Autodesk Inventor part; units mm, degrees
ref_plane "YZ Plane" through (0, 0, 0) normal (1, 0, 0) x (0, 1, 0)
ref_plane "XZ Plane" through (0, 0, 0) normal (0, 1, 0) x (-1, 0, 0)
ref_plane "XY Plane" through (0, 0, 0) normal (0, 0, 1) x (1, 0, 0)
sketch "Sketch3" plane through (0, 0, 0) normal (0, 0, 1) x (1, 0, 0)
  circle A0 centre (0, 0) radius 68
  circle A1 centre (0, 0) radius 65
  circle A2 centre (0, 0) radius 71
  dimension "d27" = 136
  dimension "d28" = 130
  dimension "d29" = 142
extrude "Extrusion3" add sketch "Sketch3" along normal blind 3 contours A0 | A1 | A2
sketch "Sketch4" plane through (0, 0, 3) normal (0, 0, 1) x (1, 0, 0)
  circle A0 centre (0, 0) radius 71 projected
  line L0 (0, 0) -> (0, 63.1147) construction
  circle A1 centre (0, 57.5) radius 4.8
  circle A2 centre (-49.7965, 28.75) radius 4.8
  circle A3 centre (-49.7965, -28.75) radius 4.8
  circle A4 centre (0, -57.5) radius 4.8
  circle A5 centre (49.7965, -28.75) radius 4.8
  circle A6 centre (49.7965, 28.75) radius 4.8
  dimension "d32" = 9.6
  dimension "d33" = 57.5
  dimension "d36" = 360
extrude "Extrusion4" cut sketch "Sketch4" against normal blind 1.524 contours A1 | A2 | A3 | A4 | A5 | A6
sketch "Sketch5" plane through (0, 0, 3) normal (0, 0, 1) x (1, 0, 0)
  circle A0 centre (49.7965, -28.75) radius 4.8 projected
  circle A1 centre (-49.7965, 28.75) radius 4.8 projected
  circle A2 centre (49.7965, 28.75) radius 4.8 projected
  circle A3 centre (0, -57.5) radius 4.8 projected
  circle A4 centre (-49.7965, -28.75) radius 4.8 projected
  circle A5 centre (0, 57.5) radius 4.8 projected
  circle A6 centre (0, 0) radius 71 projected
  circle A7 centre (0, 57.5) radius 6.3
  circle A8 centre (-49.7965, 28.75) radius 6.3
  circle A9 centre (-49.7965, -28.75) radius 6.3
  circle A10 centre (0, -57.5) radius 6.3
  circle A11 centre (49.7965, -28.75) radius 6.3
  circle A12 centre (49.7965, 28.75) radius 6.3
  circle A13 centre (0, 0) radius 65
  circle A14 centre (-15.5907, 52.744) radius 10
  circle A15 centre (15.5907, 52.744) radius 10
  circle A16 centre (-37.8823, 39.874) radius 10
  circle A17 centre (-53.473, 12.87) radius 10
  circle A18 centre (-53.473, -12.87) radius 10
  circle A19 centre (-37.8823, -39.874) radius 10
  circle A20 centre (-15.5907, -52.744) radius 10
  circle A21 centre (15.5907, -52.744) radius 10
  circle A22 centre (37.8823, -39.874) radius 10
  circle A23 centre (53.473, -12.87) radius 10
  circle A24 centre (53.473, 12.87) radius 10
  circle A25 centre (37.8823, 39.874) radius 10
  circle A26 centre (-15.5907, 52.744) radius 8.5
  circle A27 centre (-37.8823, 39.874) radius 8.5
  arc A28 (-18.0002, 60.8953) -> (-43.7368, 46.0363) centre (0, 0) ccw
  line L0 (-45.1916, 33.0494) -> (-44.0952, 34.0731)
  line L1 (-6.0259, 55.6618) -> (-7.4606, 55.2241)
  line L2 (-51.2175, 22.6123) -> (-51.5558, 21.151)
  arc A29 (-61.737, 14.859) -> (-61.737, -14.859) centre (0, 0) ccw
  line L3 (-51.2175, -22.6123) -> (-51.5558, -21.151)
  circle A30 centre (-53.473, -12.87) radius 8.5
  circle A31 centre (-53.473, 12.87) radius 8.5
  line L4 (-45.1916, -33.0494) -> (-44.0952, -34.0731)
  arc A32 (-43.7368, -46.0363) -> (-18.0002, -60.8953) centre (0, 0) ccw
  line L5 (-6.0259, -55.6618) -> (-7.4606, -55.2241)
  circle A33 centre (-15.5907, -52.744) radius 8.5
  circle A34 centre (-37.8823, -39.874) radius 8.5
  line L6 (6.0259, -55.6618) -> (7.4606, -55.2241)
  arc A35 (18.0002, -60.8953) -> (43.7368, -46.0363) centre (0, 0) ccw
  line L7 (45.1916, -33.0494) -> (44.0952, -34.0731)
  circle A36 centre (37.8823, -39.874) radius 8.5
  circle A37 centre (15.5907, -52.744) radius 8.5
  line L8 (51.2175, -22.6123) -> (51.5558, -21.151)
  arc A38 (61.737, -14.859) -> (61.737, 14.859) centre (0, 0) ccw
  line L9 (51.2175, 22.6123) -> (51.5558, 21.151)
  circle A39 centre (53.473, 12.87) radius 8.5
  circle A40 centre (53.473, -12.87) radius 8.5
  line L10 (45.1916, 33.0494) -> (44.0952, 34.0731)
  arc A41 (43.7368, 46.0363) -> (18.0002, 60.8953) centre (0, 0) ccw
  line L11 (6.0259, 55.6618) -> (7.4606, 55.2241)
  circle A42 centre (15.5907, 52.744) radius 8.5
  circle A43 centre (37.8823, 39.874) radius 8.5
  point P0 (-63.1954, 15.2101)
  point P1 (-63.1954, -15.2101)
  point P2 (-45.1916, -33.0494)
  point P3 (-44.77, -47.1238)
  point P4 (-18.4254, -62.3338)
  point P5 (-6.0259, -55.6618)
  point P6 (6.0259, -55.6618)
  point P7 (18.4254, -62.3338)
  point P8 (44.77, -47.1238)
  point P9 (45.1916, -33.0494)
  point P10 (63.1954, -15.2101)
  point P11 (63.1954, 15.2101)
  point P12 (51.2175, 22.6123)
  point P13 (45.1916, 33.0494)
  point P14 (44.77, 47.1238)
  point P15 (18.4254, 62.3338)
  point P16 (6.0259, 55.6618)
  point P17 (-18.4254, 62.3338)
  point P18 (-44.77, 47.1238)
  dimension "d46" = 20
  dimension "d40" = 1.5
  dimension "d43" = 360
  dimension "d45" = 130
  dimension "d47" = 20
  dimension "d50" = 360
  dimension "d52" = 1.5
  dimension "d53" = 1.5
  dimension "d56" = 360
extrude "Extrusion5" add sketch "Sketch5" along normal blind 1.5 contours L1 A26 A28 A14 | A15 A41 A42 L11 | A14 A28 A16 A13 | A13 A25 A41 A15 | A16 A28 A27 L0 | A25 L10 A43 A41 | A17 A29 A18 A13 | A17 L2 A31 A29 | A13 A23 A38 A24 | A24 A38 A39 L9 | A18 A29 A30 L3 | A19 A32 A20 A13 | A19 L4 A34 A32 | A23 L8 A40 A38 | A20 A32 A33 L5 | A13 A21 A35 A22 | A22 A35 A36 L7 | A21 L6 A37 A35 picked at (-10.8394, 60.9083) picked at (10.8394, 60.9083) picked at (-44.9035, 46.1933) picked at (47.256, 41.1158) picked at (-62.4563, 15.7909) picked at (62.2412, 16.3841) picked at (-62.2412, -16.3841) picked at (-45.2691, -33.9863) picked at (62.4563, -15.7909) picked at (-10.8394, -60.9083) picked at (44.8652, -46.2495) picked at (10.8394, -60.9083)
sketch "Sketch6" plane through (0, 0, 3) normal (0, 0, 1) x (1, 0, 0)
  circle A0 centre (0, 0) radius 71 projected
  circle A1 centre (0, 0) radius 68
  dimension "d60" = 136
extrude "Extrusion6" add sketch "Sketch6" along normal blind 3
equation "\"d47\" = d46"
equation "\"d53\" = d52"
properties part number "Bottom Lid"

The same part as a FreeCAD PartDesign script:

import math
import FreeCAD as App
import Part
import Sketcher
from FreeCAD import Vector
Q = App.Units.Quantity

doc = App.newDocument("Part")
body = doc.addObject("PartDesign::Body", "Body")

# Sketch on XY plane
sketch1 = doc.addObject("Sketcher::SketchObject", "Sketch")
body.addObject(sketch1)
sketch1.AttachmentSupport = (doc.XY_Plane, [""])
sketch1.MapMode = "FlatFace"
sketch1.addGeometry(Part.Circle(Vector(0, 0, 0), Vector(0, 0, 1), 71), False)
sketch1.addConstraint(Sketcher.Constraint("Coincident", 0, 3, -1, 1))
sketch1.addConstraint(Sketcher.Constraint("Diameter", 0, Q("142 mm")))
pad1 = doc.addObject("PartDesign::Pad", "Pad")
body.addObject(pad1)
pad1.Profile = sketch1
pad1.Length = 3

# Sketch on XY plane
sketch2 = doc.addObject("Sketcher::SketchObject", "Sketch001")
body.addObject(sketch2)
sketch2.AttachmentSupport = (doc.XY_Plane, [""])
sketch2.MapMode = "FlatFace"
sketch2.AttachmentOffset = App.Placement(Vector(0, 0, 3), App.Rotation())
sketch2.addGeometry(Part.Circle(Vector(0, 57.5, 0), Vector(0, 0, 1), 4.8), False)
sketch2.addGeometry(Part.Circle(Vector(-49.8, 28.8, 0), Vector(0, 0, 1), 4.8), False)
sketch2.addGeometry(Part.Circle(Vector(-49.8, -28.8, 0), Vector(0, 0, 1), 4.8), False)
sketch2.addGeometry(Part.Circle(Vector(0, -57.5, 0), Vector(0, 0, 1), 4.8), False)
sketch2.addGeometry(Part.Circle(Vector(49.8, -28.8, 0), Vector(0, 0, 1), 4.8), False)
sketch2.addGeometry(Part.Circle(Vector(49.8, 28.8, 0), Vector(0, 0, 1), 4.8), False)
sketch2.addConstraint(Sketcher.Constraint("Equal", 0, 1))
sketch2.addConstraint(Sketcher.Constraint("Equal", 1, 2))
sketch2.addConstraint(Sketcher.Constraint("Equal", 2, 3))
sketch2.addConstraint(Sketcher.Constraint("Equal", 3, 4))
sketch2.addConstraint(Sketcher.Constraint("Equal", 4, 5))
sketch2.addConstraint(Sketcher.Constraint("Symmetric", 0, 3, 3, 3, -1, 1))
sketch2.addConstraint(Sketcher.Constraint("Symmetric", 1, 3, 4, 3, -1, 1))
sketch2.addConstraint(Sketcher.Constraint("Symmetric", 2, 3, 5, 3, -1, 1))
sketch2.addConstraint(Sketcher.Constraint("Symmetric", 2, 3, 4, 3, -2))
sketch2.addConstraint(Sketcher.Constraint("PointOnObject", 0, 3, -2))
sketch2.addConstraint(Sketcher.Constraint("Diameter", 0, Q("9.6 mm")))
sketch2.addConstraint(Sketcher.Constraint("DistanceY", -1, 1, 0, 3, Q("57.5 mm")))
sketch2.addConstraint(Sketcher.Constraint("DistanceY", 2, 3, 1, 3, Q("57.5 mm")))
sketch2.addConstraint(Sketcher.Constraint("DistanceX", 2, 3, 4, 3, Q("99.593 mm")))
pocket1 = doc.addObject("PartDesign::Pocket", "Pocket")
body.addObject(pocket1)
pocket1.Profile = sketch2
pocket1.Length = 1.524

# Sketch on XY plane
sketch3 = doc.addObject("Sketcher::SketchObject", "Sketch002")
body.addObject(sketch3)
sketch3.AttachmentSupport = (doc.XY_Plane, [""])
sketch3.MapMode = "FlatFace"
sketch3.AttachmentOffset = App.Placement(Vector(0, 0, 3), App.Rotation())
sketch3.addGeometry(Part.LineSegment(Vector(-7.5, 55.2, 0), Vector(-6, 55.7, 0)), False)
sketch3.addGeometry(Part.ArcOfCircle(Part.Circle(Vector(-15.6, 52.7, 0), Vector(0, 0, 1), 10), math.radians(17), math.radians(106)), False)
sketch3.addGeometry(Part.ArcOfCircle(Part.Circle(Vector(0, 0, 0), Vector(0, 0, 1), 65), math.radians(106), math.radians(134)), False)
sketch3.addGeometry(Part.ArcOfCircle(Part.Circle(Vector(-37.9, 39.9, 0), Vector(0, 0, 1), 10), math.radians(134), math.radians(223)), False)
sketch3.addGeometry(Part.LineSegment(Vector(-45.2, 33, 0), Vector(-44.1, 34.1, 0)), False)
sketch3.addGeometry(Part.ArcOfCircle(Part.Circle(Vector(-37.9, 39.9, 0), Vector(0, 0, 1), 8.5), math.radians(134), math.radians(223)), False)
sketch3.addGeometry(Part.ArcOfCircle(Part.Circle(Vector(0, 0, 0), Vector(0, 0, 1), 63.5), math.radians(106), math.radians(134)), False)
sketch3.addGeometry(Part.ArcOfCircle(Part.Circle(Vector(-15.6, 52.7, 0), Vector(0, 0, 1), 8.5), math.radians(17), math.radians(106)), False)
sketch3.addGeometry(Part.ArcOfCircle(Part.Circle(Vector(15.6, 52.7, 0), Vector(0, 0, 1), 10), math.radians(74), math.radians(163)), False)
sketch3.addGeometry(Part.LineSegment(Vector(6, 55.7, 0), Vector(7.5, 55.2, 0)), False)
sketch3.addGeometry(Part.ArcOfCircle(Part.Circle(Vector(15.6, 52.7, 0), Vector(0, 0, 1), 8.5), math.radians(74), math.radians(163)), False)
sketch3.addGeometry(Part.ArcOfCircle(Part.Circle(Vector(0, 0, 0), Vector(0, 0, 1), 63.5), math.radians(46), math.radians(74)), False)
sketch3.addGeometry(Part.ArcOfCircle(Part.Circle(Vector(37.9, 39.9, 0), Vector(0, 0, 1), 8.5), math.radians(-43), math.radians(46)), False)
sketch3.addGeometry(Part.LineSegment(Vector(44.1, 34.1, 0), Vector(45.2, 33, 0)), False)
sketch3.addGeometry(Part.ArcOfCircle(Part.Circle(Vector(37.9, 39.9, 0), Vector(0, 0, 1), 10), math.radians(-43), math.radians(46)), False)
sketch3.addGeometry(Part.ArcOfCircle(Part.Circle(Vector(0, 0, 0), Vector(0, 0, 1), 65), math.radians(46), math.radians(74)), False)
sketch3.addGeometry(Part.ArcOfCircle(Part.Circle(Vector(-53.5, 12.9, 0), Vector(0, 0, 1), 8.5), math.radians(77), math.radians(166)), False)
sketch3.addGeometry(Part.LineSegment(Vector(-51.6, 21.2, 0), Vector(-51.2, 22.6, 0)), False)
sketch3.addGeometry(Part.ArcOfCircle(Part.Circle(Vector(-53.5, 12.9, 0), Vector(0, 0, 1), 10), math.radians(77), math.radians(166)), False)
sketch3.addGeometry(Part.ArcOfCircle(Part.Circle(Vector(0, 0, 0), Vector(0, 0, 1), 65), math.radians(166), math.radians(194)), False)
sketch3.addGeometry(Part.ArcOfCircle(Part.Circle(Vector(-53.5, -12.9, 0), Vector(0, 0, 1), 10), math.radians(-166), math.radians(-77)), False)
sketch3.addGeometry(Part.LineSegment(Vector(-51.2, -22.6, 0), Vector(-51.6, -21.2, 0)), False)
sketch3.addGeometry(Part.ArcOfCircle(Part.Circle(Vector(-53.5, -12.9, 0), Vector(0, 0, 1), 8.5), math.radians(-166), math.radians(-77)), False)
sketch3.addGeometry(Part.ArcOfCircle(Part.Circle(Vector(0, 0, 0), Vector(0, 0, 1), 63.5), math.radians(166), math.radians(194)), False)
sketch3.addGeometry(Part.ArcOfCircle(Part.Circle(Vector(53.5, 12.9, 0), Vector(0, 0, 1), 10), math.radians(14), math.radians(103)), False)
sketch3.addGeometry(Part.LineSegment(Vector(51.2, 22.6, 0), Vector(51.6, 21.2, 0)), False)
sketch3.addGeometry(Part.ArcOfCircle(Part.Circle(Vector(53.5, 12.9, 0), Vector(0, 0, 1), 8.5), math.radians(14), math.radians(103)), False)
sketch3.addGeometry(Part.ArcOfCircle(Part.Circle(Vector(0, 0, 0), Vector(0, 0, 1), 63.5), math.radians(-14), math.radians(14)), False)
sketch3.addGeometry(Part.ArcOfCircle(Part.Circle(Vector(53.5, -12.9, 0), Vector(0, 0, 1), 8.5), math.radians(-103), math.radians(-14)), False)
sketch3.addGeometry(Part.LineSegment(Vector(51.6, -21.2, 0), Vector(51.2, -22.6, 0)), False)
sketch3.addGeometry(Part.ArcOfCircle(Part.Circle(Vector(53.5, -12.9, 0), Vector(0, 0, 1), 10), math.radians(-103), math.radians(-14)), False)
sketch3.addGeometry(Part.ArcOfCircle(Part.Circle(Vector(0, 0, 0), Vector(0, 0, 1), 65), math.radians(-14), math.radians(14)), False)
sketch3.addGeometry(Part.ArcOfCircle(Part.Circle(Vector(-37.9, -39.9, 0), Vector(0, 0, 1), 8.5), math.radians(137), math.radians(226)), False)
sketch3.addGeometry(Part.LineSegment(Vector(-44.1, -34.1, 0), Vector(-45.2, -33, 0)), False)
sketch3.addGeometry(Part.ArcOfCircle(Part.Circle(Vector(-37.9, -39.9, 0), Vector(0, 0, 1), 10), math.radians(137), math.radians(226)), False)
sketch3.addGeometry(Part.ArcOfCircle(Part.Circle(Vector(0, 0, 0), Vector(0, 0, 1), 65), math.radians(-134), math.radians(-106)), False)
sketch3.addGeometry(Part.ArcOfCircle(Part.Circle(Vector(-15.6, -52.7, 0), Vector(0, 0, 1), 10), math.radians(-106), math.radians(-17)), False)
sketch3.addGeometry(Part.LineSegment(Vector(-6, -55.7, 0), Vector(-7.5, -55.2, 0)), False)
sketch3.addGeometry(Part.ArcOfCircle(Part.Circle(Vector(-15.6, -52.7, 0), Vector(0, 0, 1), 8.5), math.radians(-106), math.radians(-17)), False)
sketch3.addGeometry(Part.ArcOfCircle(Part.Circle(Vector(0, 0, 0), Vector(0, 0, 1), 63.5), math.radians(-134), math.radians(-106)), False)
sketch3.addGeometry(Part.ArcOfCircle(Part.Circle(Vector(0, 0, 0), Vector(0, 0, 1), 65), math.radians(-74), math.radians(-46)), False)
sketch3.addGeometry(Part.ArcOfCircle(Part.Circle(Vector(37.9, -39.9, 0), Vector(0, 0, 1), 10), math.radians(-46), math.radians(43)), False)
sketch3.addGeometry(Part.LineSegment(Vector(45.2, -33, 0), Vector(44.1, -34.1, 0)), False)
sketch3.addGeometry(Part.ArcOfCircle(Part.Circle(Vector(37.9, -39.9, 0), Vector(0, 0, 1), 8.5), math.radians(-46), math.radians(43)), False)
sketch3.addGeometry(Part.ArcOfCircle(Part.Circle(Vector(0, 0, 0), Vector(0, 0, 1), 63.5), math.radians(-74), math.radians(-46)), False)
sketch3.addGeometry(Part.ArcOfCircle(Part.Circle(Vector(15.6, -52.7, 0), Vector(0, 0, 1), 8.5), math.radians(-163), math.radians(-74)), False)
sketch3.addGeometry(Part.LineSegment(Vector(7.5, -55.2, 0), Vector(6, -55.7, 0)), False)
sketch3.addGeometry(Part.ArcOfCircle(Part.Circle(Vector(15.6, -52.7, 0), Vector(0, 0, 1), 10), math.radians(-163), math.radians(-74)), False)
sketch3.addConstraint(Sketcher.Constraint("Coincident", 0, 2, 1, 1))
sketch3.addConstraint(Sketcher.Constraint("Tangent", 1, 2, 2, 1))
sketch3.addConstraint(Sketcher.Constraint("Tangent", 2, 2, 3, 1))
sketch3.addConstraint(Sketcher.Constraint("Coincident", 3, 2, 4, 1))
sketch3.addConstraint(Sketcher.Constraint("Coincident", 4, 2, 5, 2))
sketch3.addConstraint(Sketcher.Constraint("Tangent", 5, 1, 6, 2))
sketch3.addConstraint(Sketcher.Constraint("Tangent", 6, 1, 7, 2))
sketch3.addConstraint(Sketcher.Constraint("Coincident", 7, 1, 0, 1))
sketch3.addConstraint(Sketcher.Constraint("Coincident", 8, 2, 9, 1))
sketch3.addConstraint(Sketcher.Constraint("Coincident", 9, 2, 10, 2))
sketch3.addConstraint(Sketcher.Constraint("Tangent", 10, 1, 11, 2))
sketch3.addConstraint(Sketcher.Constraint("Tangent", 11, 1, 12, 2))
sketch3.addConstraint(Sketcher.Constraint("Coincident", 12, 1, 13, 1))
sketch3.addConstraint(Sketcher.Constraint("Coincident", 13, 2, 14, 1))
sketch3.addConstraint(Sketcher.Constraint("Tangent", 14, 2, 15, 1))
sketch3.addConstraint(Sketcher.Constraint("Tangent", 15, 2, 8, 1))
sketch3.addConstraint(Sketcher.Constraint("Coincident", 16, 1, 17, 1))
sketch3.addConstraint(Sketcher.Constraint("Coincident", 17, 2, 18, 1))
sketch3.addConstraint(Sketcher.Constraint("Tangent", 18, 2, 19, 1))
sketch3.addConstraint(Sketcher.Constraint("Tangent", 19, 2, 20, 1))
sketch3.addConstraint(Sketcher.Constraint("Coincident", 20, 2, 21, 1))
sketch3.addConstraint(Sketcher.Constraint("Coincident", 21, 2, 22, 2))
sketch3.addConstraint(Sketcher.Constraint("Tangent", 22, 1, 23, 2))
sketch3.addConstraint(Sketcher.Constraint("Tangent", 23, 1, 16, 2))
sketch3.addConstraint(Sketcher.Constraint("Coincident", 24, 2, 25, 1))
sketch3.addConstraint(Sketcher.Constraint("Coincident", 25, 2, 26, 2))
sketch3.addConstraint(Sketcher.Constraint("Tangent", 26, 1, 27, 2))
sketch3.addConstraint(Sketcher.Constraint("Tangent", 27, 1, 28, 2))
sketch3.addConstraint(Sketcher.Constraint("Coincident", 28, 1, 29, 1))
sketch3.addConstraint(Sketcher.Constraint("Coincident", 29, 2, 30, 1))
sketch3.addConstraint(Sketcher.Constraint("Tangent", 30, 2, 31, 1))
sketch3.addConstraint(Sketcher.Constraint("Tangent", 31, 2, 24, 1))
sketch3.addConstraint(Sketcher.Constraint("Coincident", 32, 1, 33, 1))
sketch3.addConstraint(Sketcher.Constraint("Coincident", 33, 2, 34, 1))
sketch3.addConstraint(Sketcher.Constraint("Tangent", 34, 2, 35, 1))
sketch3.addConstraint(Sketcher.Constraint("Tangent", 35, 2, 36, 1))
sketch3.addConstraint(Sketcher.Constraint("Coincident", 36, 2, 37, 1))
sketch3.addConstraint(Sketcher.Constraint("Coincident", 37, 2, 38, 2))
sketch3.addConstraint(Sketcher.Constraint("Tangent", 38, 1, 39, 2))
sketch3.addConstraint(Sketcher.Constraint("Tangent", 39, 1, 32, 2))
sketch3.addConstraint(Sketcher.Constraint("Tangent", 40, 2, 41, 1))
sketch3.addConstraint(Sketcher.Constraint("Coincident", 41, 2, 42, 1))
sketch3.addConstraint(Sketcher.Constraint("Coincident", 42, 2, 43, 2))
sketch3.addConstraint(Sketcher.Constraint("Tangent", 43, 1, 44, 2))
sketch3.addConstraint(Sketcher.Constraint("Tangent", 44, 1, 45, 2))
sketch3.addConstraint(Sketcher.Constraint("Coincident", 45, 1, 46, 1))
sketch3.addConstraint(Sketcher.Constraint("Coincident", 46, 2, 47, 1))
sketch3.addConstraint(Sketcher.Constraint("Tangent", 47, 2, 40, 1))
sketch3.addConstraint(Sketcher.Constraint("Coincident", 2, 3, -1, 1))
sketch3.addConstraint(Sketcher.Constraint("Coincident", 6, 3, -1, 1))
sketch3.addConstraint(Sketcher.Constraint("Coincident", 11, 3, -1, 1))
sketch3.addConstraint(Sketcher.Constraint("Coincident", 15, 3, -1, 1))
sketch3.addConstraint(Sketcher.Constraint("Coincident", 19, 3, -1, 1))
sketch3.addConstraint(Sketcher.Constraint("Coincident", 23, 3, -1, 1))
sketch3.addConstraint(Sketcher.Constraint("Coincident", 27, 3, -1, 1))
sketch3.addConstraint(Sketcher.Constraint("Coincident", 31, 3, -1, 1))
sketch3.addConstraint(Sketcher.Constraint("Coincident", 35, 3, -1, 1))
sketch3.addConstraint(Sketcher.Constraint("Coincident", 39, 3, -1, 1))
sketch3.addConstraint(Sketcher.Constraint("Coincident", 40, 3, -1, 1))
sketch3.addConstraint(Sketcher.Constraint("Coincident", 44, 3, -1, 1))
sketch3.addConstraint(Sketcher.Constraint("Coincident", 5, 3, 3, 3))
sketch3.addConstraint(Sketcher.Constraint("Coincident", 7, 3, 1, 3))
sketch3.addConstraint(Sketcher.Constraint("Coincident", 10, 3, 8, 3))
sketch3.addConstraint(Sketcher.Constraint("Coincident", 14, 3, 12, 3))
sketch3.addConstraint(Sketcher.Constraint("Coincident", 18, 3, 16, 3))
sketch3.addConstraint(Sketcher.Constraint("Coincident", 22, 3, 20, 3))
sketch3.addConstraint(Sketcher.Constraint("Coincident", 26, 3, 24, 3))
sketch3.addConstraint(Sketcher.Constraint("Coincident", 30, 3, 28, 3))
sketch3.addConstraint(Sketcher.Constraint("Coincident", 34, 3, 32, 3))
sketch3.addConstraint(Sketcher.Constraint("Coincident", 38, 3, 36, 3))
sketch3.addConstraint(Sketcher.Constraint("Coincident", 43, 3, 41, 3))
sketch3.addConstraint(Sketcher.Constraint("Coincident", 47, 3, 45, 3))
sketch3.addConstraint(Sketcher.Constraint("Equal", 1, 3))
sketch3.addConstraint(Sketcher.Constraint("Equal", 3, 8))
sketch3.addConstraint(Sketcher.Constraint("Equal", 7, 10))
sketch3.addConstraint(Sketcher.Constraint("Equal", 6, 11))
sketch3.addConstraint(Sketcher.Constraint("Equal", 10, 12))
sketch3.addConstraint(Sketcher.Constraint("Equal", 12, 16))
sketch3.addConstraint(Sketcher.Constraint("Equal", 14, 18))
sketch3.addConstraint(Sketcher.Constraint("Equal", 15, 19))
sketch3.addConstraint(Sketcher.Constraint("Equal", 18, 20))
sketch3.addConstraint(Sketcher.Constraint("Equal", 20, 24))
sketch3.addConstraint(Sketcher.Constraint("Equal", 22, 26))
sketch3.addConstraint(Sketcher.Constraint("Equal", 23, 27))
sketch3.addConstraint(Sketcher.Constraint("Equal", 26, 28))
sketch3.addConstraint(Sketcher.Constraint("Equal", 28, 32))
sketch3.addConstraint(Sketcher.Constraint("Equal", 30, 34))
sketch3.addConstraint(Sketcher.Constraint("Equal", 31, 35))
sketch3.addConstraint(Sketcher.Constraint("Equal", 34, 36))
sketch3.addConstraint(Sketcher.Constraint("Equal", 35, 40))
sketch3.addConstraint(Sketcher.Constraint("Equal", 36, 41))
sketch3.addConstraint(Sketcher.Constraint("Equal", 38, 43))
sketch3.addConstraint(Sketcher.Constraint("Equal", 43, 45))
sketch3.addConstraint(Sketcher.Constraint("Symmetric", 20, 2, 24, 2, -1, 1))
sketch3.addConstraint(Sketcher.Constraint("Symmetric", 16, 1, 28, 1, -1, 1))
sketch3.addConstraint(Sketcher.Constraint("Symmetric", 12, 1, 32, 1, -1, 1))
sketch3.addConstraint(Sketcher.Constraint("Symmetric", 8, 2, 36, 2, -1, 1))
sketch3.addConstraint(Sketcher.Constraint("Symmetric", 3, 2, 41, 2, -1, 1))
sketch3.addConstraint(Sketcher.Constraint("Symmetric", 7, 1, 45, 1, -1, 1))
sketch3.addConstraint(Sketcher.Constraint("Symmetric", 0, 2, 8, 2, -2))
sketch3.addConstraint(Sketcher.Constraint("Symmetric", 4, 2, 12, 1, -2))
sketch3.addConstraint(Sketcher.Constraint("Symmetric", 17, 2, 24, 2, -2))
sketch3.addConstraint(Sketcher.Constraint("Parallel", 21, 25))
sketch3.addConstraint(Sketcher.Constraint("Parallel", 17, 29))
sketch3.addConstraint(Sketcher.Constraint("Parallel", 13, 33))
sketch3.addConstraint(Sketcher.Constraint("Parallel", 9, 37))
sketch3.addConstraint(Sketcher.Constraint("Parallel", 4, 42))
sketch3.addConstraint(Sketcher.Constraint("Parallel", 0, 46))
sketch3.addConstraint(Sketcher.Constraint("Horizontal", 7, 1, 9, 2))
sketch3.addConstraint(Sketcher.Constraint("Horizontal", 3, 2, 13, 2))
sketch3.addConstraint(Sketcher.Constraint("Horizontal", 16, 1, 25, 2))
sketch3.addConstraint(Sketcher.Constraint("Radius", 1, Q("10 mm")))
sketch3.addConstraint(Sketcher.Constraint("Radius", 2, Q("65 mm")))
sketch3.addConstraint(Sketcher.Constraint("Distance", 0, Q("1.5 mm")))
sketch3.addConstraint(Sketcher.Constraint("DistanceY", -1, 1, 16, 3, Q("12.87 mm")))
sketch3.addConstraint(Sketcher.Constraint("DistanceX", 2, 2, -1, 1, Q("44.77 mm")))
sketch3.addConstraint(Sketcher.Constraint("DistanceY", -1, 1, 1, 3, Q("52.744 mm")))
sketch3.addConstraint(Sketcher.Constraint("DistanceX", 0, 2, -1, 1, Q("6.026 mm")))
sketch3.addConstraint(Sketcher.Constraint("DistanceY", -1, 1, 4, 2, Q("34.073 mm")))
sketch3.addConstraint(Sketcher.Constraint("DistanceY", -1, 1, 7, 1, Q("55.224 mm")))
sketch3.addConstraint(Sketcher.Constraint("DistanceY", -1, 1, 16, 1, Q("21.151 mm")))
sketch3.addConstraint(Sketcher.Constraint("DistanceX", 3, 2, -1, 1, Q("45.1916 mm")))
sketch3.addConstraint(Sketcher.Constraint("DistanceX", 17, 2, -1, 1, Q("51.2175 mm")))
pad2 = doc.addObject("PartDesign::Pad", "Pad001")
body.addObject(pad2)
pad2.Profile = sketch3
pad2.Length = 1.5

# Sketch on XY plane
sketch4 = doc.addObject("Sketcher::SketchObject", "Sketch003")
body.addObject(sketch4)
sketch4.AttachmentSupport = (doc.XY_Plane, [""])
sketch4.MapMode = "FlatFace"
sketch4.AttachmentOffset = App.Placement(Vector(0, 0, 3), App.Rotation())
sketch4.addGeometry(Part.Circle(Vector(0, 0, 0), Vector(0, 0, 1), 71), False)
sketch4.addGeometry(Part.Circle(Vector(0, 0, 0), Vector(0, 0, 1), 68), False)
sketch4.addConstraint(Sketcher.Constraint("Coincident", 0, 3, -1, 1))
sketch4.addConstraint(Sketcher.Constraint("Coincident", 1, 3, -1, 1))
sketch4.addConstraint(Sketcher.Constraint("Diameter", 1, Q("136 mm")))
sketch4.addConstraint(Sketcher.Constraint("Diameter", 0, Q("142 mm")))
pad3 = doc.addObject("PartDesign::Pad", "Pad002")
body.addObject(pad3)
pad3.Profile = sketch4
pad3.Length = 3

doc.recompute()
